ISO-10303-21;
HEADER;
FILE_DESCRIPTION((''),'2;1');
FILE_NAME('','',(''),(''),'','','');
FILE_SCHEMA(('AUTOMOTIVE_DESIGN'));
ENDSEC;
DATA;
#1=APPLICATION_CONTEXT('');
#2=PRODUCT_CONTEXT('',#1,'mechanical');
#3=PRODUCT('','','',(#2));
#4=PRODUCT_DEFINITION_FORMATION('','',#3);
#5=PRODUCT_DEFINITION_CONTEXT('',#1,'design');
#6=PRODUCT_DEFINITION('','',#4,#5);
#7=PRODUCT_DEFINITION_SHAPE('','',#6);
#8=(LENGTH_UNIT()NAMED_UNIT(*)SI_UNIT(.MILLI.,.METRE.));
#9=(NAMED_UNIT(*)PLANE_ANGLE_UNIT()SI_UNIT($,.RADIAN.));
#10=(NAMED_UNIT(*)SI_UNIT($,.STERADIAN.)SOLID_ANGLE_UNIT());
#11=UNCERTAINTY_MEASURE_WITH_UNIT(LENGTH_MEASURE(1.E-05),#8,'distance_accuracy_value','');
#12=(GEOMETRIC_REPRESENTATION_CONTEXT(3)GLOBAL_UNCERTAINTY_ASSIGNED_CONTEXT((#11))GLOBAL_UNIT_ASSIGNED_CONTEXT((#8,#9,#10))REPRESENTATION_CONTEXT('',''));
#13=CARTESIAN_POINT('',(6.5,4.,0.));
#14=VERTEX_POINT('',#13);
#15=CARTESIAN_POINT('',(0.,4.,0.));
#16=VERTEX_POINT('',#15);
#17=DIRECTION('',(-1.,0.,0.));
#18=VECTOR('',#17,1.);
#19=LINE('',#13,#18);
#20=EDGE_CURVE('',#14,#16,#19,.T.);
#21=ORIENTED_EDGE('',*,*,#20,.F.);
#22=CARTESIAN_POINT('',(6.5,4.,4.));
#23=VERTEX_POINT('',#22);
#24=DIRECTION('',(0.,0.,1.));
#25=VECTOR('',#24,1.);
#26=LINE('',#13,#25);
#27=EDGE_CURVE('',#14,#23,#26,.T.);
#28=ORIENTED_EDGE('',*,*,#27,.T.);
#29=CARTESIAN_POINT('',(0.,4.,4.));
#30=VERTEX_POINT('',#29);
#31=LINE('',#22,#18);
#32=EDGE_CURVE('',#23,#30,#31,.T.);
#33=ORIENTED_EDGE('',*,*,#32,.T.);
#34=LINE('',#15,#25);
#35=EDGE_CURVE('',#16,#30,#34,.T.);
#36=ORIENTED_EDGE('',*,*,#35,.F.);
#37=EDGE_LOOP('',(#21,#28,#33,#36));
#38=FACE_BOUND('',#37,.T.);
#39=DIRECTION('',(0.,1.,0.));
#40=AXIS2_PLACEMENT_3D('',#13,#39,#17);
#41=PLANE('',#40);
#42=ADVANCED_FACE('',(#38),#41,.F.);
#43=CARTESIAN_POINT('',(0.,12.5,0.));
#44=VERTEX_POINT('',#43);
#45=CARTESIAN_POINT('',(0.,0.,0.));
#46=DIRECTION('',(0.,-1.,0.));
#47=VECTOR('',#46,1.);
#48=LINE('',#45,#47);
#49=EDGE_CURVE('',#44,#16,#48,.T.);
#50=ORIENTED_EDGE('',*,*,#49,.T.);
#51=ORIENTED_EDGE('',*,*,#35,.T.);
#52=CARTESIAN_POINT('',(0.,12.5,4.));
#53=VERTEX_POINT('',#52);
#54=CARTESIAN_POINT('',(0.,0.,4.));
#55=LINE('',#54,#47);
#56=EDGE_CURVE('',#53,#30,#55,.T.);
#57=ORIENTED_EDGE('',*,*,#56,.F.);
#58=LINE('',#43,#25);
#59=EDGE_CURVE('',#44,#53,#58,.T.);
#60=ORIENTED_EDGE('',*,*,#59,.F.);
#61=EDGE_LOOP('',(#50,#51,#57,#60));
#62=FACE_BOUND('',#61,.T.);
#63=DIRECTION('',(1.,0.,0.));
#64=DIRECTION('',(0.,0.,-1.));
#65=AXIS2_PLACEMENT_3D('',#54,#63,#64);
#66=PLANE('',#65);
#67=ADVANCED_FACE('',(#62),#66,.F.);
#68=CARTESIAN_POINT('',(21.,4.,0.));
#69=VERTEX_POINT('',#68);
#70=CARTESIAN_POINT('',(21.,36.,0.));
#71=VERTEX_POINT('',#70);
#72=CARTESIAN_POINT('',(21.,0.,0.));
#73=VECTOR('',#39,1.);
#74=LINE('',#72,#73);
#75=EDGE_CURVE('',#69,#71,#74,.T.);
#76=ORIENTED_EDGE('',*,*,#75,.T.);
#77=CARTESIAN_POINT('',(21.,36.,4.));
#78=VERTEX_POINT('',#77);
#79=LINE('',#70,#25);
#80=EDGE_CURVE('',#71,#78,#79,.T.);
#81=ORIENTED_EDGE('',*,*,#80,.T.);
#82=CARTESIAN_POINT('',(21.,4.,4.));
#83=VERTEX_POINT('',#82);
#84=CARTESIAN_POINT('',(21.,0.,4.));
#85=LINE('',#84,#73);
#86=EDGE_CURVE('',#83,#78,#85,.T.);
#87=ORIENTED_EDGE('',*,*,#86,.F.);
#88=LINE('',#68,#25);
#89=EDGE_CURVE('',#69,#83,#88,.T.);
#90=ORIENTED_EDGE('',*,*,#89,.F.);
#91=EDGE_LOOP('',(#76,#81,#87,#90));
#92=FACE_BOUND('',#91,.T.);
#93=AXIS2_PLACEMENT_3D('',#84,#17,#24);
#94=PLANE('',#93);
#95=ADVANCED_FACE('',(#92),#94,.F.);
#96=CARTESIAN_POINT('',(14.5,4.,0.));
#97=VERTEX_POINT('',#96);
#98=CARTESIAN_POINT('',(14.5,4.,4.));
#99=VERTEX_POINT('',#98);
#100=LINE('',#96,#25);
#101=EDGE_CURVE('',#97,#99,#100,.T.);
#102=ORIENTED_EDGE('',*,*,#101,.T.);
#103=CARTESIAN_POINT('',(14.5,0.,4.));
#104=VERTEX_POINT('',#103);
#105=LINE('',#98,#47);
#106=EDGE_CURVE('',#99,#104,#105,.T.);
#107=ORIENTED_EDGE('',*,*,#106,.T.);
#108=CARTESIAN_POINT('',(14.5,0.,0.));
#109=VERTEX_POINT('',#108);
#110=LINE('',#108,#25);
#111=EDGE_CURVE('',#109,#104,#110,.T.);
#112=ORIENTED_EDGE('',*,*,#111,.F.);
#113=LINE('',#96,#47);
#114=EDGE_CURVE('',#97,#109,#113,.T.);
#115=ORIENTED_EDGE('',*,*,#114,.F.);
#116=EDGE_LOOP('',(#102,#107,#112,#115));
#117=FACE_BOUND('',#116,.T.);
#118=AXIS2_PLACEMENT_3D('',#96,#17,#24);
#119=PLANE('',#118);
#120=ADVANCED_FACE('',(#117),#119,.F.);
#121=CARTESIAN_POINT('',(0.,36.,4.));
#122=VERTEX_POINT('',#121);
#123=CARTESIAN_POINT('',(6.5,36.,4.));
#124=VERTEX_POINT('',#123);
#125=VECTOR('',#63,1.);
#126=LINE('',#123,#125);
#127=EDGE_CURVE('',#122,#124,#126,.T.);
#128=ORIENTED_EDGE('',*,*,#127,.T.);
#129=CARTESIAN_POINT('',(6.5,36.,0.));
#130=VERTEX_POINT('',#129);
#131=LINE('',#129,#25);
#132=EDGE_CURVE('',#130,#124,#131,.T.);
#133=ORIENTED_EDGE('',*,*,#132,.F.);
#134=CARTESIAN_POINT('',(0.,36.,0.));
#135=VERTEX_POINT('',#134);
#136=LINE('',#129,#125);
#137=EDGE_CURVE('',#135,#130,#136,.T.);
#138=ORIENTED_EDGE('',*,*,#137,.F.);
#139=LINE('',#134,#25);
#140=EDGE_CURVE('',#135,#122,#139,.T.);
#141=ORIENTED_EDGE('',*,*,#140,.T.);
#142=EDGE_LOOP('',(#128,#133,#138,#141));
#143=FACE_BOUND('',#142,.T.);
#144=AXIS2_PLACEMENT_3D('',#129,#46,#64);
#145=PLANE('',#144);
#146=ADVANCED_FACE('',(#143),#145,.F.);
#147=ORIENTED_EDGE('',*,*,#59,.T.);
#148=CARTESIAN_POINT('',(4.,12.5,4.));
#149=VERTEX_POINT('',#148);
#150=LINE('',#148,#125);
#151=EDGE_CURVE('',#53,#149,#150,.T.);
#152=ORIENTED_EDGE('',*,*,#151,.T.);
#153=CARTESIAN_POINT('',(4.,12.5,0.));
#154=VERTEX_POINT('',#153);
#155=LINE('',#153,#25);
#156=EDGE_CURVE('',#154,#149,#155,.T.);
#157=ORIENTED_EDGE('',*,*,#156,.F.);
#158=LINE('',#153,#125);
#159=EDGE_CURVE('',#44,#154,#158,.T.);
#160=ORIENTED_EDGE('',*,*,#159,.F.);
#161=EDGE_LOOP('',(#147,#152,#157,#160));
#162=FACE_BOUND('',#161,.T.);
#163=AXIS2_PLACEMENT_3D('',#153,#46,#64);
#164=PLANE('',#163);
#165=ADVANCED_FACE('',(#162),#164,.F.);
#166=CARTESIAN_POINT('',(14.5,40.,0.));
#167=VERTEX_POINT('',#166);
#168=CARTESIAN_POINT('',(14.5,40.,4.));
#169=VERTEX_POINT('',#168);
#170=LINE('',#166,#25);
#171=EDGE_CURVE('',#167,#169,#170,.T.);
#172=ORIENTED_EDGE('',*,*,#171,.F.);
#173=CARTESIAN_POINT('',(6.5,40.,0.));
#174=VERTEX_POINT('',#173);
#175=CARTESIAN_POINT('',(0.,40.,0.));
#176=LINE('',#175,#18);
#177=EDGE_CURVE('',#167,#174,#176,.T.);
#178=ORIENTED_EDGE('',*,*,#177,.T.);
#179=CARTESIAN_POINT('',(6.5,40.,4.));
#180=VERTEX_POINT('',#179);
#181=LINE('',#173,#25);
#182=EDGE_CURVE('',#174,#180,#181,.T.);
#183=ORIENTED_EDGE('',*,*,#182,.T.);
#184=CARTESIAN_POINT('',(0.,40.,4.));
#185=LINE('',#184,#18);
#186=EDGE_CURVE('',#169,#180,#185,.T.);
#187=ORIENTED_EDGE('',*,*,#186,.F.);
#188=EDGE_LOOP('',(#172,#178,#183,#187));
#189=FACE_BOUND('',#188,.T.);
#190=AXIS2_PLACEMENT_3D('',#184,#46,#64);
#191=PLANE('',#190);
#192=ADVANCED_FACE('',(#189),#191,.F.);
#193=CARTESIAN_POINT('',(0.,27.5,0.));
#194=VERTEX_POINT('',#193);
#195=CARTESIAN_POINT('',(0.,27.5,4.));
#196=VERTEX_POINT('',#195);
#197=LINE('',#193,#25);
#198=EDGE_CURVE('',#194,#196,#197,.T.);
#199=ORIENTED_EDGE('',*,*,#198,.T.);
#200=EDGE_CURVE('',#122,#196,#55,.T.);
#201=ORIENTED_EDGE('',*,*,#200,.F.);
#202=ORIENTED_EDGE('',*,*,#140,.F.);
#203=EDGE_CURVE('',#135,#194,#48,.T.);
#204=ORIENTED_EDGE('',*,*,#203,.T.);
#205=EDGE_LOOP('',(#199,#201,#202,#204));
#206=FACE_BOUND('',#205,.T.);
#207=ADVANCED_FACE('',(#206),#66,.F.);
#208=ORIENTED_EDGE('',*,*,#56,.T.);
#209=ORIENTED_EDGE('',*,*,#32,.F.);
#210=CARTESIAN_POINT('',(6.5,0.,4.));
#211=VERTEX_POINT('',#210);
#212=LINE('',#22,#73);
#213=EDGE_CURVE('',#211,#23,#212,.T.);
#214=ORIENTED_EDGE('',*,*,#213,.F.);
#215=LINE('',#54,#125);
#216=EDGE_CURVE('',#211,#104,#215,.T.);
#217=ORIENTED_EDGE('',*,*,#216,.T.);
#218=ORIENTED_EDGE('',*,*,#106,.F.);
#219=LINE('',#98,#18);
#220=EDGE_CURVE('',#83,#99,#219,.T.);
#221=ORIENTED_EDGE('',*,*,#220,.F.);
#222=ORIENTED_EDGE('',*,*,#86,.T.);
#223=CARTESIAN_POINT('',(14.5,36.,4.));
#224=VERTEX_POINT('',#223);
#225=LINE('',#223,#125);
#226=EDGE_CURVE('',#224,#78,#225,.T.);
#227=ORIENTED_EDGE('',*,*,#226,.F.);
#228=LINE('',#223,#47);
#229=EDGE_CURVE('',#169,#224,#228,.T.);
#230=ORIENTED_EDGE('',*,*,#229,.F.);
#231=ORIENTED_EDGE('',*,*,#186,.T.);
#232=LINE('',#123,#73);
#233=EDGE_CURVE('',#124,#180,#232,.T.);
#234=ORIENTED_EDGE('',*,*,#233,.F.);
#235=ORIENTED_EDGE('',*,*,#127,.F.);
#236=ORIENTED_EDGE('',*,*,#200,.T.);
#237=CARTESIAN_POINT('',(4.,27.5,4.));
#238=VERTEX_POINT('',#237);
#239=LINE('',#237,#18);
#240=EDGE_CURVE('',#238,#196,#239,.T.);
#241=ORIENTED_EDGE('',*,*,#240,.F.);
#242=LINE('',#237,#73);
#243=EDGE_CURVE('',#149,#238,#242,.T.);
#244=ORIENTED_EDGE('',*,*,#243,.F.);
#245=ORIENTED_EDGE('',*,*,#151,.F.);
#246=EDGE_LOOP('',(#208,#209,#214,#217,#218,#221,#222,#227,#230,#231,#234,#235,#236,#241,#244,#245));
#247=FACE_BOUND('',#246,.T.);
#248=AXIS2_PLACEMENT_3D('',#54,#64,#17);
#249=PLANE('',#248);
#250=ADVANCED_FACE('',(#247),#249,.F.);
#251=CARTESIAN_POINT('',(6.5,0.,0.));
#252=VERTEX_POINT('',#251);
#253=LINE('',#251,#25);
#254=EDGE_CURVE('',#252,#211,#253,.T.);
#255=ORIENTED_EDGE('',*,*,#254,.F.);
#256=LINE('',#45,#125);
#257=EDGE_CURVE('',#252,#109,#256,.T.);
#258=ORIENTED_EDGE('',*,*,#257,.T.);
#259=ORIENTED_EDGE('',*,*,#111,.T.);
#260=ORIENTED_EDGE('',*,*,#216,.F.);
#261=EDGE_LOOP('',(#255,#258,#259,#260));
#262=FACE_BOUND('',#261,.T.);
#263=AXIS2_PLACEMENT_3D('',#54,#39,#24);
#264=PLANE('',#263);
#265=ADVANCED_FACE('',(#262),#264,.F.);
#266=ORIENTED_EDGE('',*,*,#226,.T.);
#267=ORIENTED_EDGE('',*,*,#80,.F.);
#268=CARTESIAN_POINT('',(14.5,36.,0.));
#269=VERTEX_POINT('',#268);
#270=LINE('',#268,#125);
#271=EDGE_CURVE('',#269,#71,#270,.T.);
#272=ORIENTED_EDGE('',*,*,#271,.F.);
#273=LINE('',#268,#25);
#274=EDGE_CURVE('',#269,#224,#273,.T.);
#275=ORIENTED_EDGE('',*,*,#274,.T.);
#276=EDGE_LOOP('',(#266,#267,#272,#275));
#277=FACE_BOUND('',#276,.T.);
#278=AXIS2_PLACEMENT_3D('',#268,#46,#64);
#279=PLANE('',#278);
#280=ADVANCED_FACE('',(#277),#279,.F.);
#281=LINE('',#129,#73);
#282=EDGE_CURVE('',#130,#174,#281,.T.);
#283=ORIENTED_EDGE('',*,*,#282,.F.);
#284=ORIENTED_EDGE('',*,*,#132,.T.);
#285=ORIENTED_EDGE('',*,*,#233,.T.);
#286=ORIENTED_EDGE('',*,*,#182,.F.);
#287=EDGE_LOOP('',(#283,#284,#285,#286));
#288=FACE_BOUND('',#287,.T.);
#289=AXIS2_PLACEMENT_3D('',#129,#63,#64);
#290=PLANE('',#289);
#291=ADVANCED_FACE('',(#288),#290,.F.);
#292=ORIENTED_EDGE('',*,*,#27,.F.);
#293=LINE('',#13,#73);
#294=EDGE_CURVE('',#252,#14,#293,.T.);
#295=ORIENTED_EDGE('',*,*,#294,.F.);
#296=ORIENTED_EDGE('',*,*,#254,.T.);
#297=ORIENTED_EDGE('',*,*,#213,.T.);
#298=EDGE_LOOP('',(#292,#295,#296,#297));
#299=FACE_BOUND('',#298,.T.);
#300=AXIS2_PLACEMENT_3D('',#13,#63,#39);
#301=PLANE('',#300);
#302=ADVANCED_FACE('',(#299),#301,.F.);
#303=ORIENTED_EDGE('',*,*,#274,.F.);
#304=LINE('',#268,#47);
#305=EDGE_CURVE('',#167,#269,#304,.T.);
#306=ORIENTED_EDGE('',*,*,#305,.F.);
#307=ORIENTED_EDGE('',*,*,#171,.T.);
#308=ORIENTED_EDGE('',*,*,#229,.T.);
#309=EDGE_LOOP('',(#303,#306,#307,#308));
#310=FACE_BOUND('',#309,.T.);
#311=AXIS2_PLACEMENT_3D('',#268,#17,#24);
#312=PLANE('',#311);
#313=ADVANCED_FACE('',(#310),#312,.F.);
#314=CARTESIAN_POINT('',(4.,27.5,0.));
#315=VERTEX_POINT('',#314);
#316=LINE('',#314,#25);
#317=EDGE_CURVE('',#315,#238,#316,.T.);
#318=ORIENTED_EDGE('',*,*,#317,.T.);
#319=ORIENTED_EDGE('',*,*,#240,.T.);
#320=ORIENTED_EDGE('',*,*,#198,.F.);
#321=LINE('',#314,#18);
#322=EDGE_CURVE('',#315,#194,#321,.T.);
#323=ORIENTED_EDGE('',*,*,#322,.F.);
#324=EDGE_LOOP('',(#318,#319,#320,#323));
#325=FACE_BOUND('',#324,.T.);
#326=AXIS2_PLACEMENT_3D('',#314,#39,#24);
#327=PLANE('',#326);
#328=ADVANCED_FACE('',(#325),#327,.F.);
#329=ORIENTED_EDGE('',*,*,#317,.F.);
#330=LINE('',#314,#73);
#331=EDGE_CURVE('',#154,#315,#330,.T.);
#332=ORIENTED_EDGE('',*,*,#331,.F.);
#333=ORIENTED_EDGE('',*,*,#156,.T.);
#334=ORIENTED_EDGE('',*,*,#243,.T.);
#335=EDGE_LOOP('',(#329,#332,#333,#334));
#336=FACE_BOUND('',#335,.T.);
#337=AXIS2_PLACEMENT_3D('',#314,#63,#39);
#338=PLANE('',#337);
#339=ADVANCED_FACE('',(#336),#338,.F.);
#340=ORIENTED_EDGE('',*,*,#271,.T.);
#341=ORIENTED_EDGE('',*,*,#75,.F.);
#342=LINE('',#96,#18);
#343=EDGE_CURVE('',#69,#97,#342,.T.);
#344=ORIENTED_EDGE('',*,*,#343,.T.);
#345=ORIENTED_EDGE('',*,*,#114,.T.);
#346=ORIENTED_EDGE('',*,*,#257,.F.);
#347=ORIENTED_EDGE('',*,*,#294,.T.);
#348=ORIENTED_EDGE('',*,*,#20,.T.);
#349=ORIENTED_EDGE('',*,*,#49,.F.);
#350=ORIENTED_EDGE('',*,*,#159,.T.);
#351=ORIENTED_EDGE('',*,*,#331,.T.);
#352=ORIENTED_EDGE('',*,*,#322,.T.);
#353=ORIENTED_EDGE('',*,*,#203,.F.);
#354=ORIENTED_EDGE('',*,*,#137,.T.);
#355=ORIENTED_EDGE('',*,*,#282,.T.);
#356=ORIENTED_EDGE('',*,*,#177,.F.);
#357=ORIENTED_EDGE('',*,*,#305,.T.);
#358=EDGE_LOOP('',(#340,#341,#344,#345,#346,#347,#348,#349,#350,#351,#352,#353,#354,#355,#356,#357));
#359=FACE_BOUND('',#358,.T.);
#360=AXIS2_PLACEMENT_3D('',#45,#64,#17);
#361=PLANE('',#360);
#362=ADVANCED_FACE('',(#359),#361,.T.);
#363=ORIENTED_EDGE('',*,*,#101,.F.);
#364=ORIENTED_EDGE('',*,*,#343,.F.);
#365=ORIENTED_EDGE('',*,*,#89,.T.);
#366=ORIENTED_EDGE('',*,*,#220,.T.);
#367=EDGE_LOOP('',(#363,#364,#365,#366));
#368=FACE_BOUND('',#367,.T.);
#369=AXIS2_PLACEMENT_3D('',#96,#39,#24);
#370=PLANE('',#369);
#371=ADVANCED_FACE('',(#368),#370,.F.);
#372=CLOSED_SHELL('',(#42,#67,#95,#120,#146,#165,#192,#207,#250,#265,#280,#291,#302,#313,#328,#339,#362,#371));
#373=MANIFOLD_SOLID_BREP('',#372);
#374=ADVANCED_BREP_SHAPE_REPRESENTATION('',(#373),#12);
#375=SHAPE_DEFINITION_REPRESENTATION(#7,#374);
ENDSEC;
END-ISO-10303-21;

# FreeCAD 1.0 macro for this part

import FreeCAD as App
import Part
import Sketcher

V = App.Vector
Q = App.Units.Quantity

doc = App.newDocument("Part")
body = doc.addObject("PartDesign::Body", "Body")

# Sketch on XY plane
sketch1 = body.newObject("Sketcher::SketchObject", "Sketch")
sketch1.AttachmentSupport = (doc.getObject("XY_Plane"), [""])
sketch1.MapMode = "FlatFace"
sketch1.addGeometry(Part.LineSegment(V(0, 40, 0), V(0, 0, 0)), False)
sketch1.addGeometry(Part.LineSegment(V(0, 0, 0), V(21, 0, 0)), False)
sketch1.addGeometry(Part.LineSegment(V(21, 0, 0), V(21, 40, 0)), False)
sketch1.addGeometry(Part.LineSegment(V(21, 40, 0), V(0, 40, 0)), False)
sketch1.addConstraint(Sketcher.Constraint("Coincident", 0, 2, 1, 1))
sketch1.addConstraint(Sketcher.Constraint("Coincident", 1, 2, 2, 1))
sketch1.addConstraint(Sketcher.Constraint("Coincident", 2, 2, 3, 1))
sketch1.addConstraint(Sketcher.Constraint("Coincident", 3, 2, 0, 1))
sketch1.addConstraint(Sketcher.Constraint("Vertical", 0))
sketch1.addConstraint(Sketcher.Constraint("Horizontal", 1))
sketch1.addConstraint(Sketcher.Constraint("Vertical", 2))
sketch1.addConstraint(Sketcher.Constraint("Horizontal", 3))
sketch1.addConstraint(Sketcher.Constraint("Coincident", 0, 2, -1, 1))
sketch1.addConstraint(Sketcher.Constraint("DistanceX", 1, 1, 1, 2, Q("21 mm")))
sketch1.addConstraint(Sketcher.Constraint("DistanceY", 0, 2, 0, 1, Q("40 mm")))
pad1 = body.newObject("PartDesign::Pad", "Pad")
pad1.Profile = sketch1
pad1.Length = 4

# Sketch on XY plane
sketch2 = body.newObject("Sketcher::SketchObject", "Sketch001")
sketch2.AttachmentSupport = (doc.getObject("XY_Plane"), [""])
sketch2.MapMode = "FlatFace"
sketch2.AttachmentOffset = App.Placement(V(0, 0, 4), App.Rotation())
sketch2.addGeometry(Part.LineSegment(V(14.5, 40, 0), V(14.5, 36, 0)), False)
sketch2.addGeometry(Part.LineSegment(V(14.5, 36, 0), V(21, 36, 0)), False)
sketch2.addGeometry(Part.LineSegment(V(21, 36, 0), V(21, 40, 0)), False)
sketch2.addGeometry(Part.LineSegment(V(21, 40, 0), V(14.5, 40, 0)), False)
sketch2.addGeometry(Part.LineSegment(V(0, 40, 0), V(0, 36, 0)), False)
sketch2.addGeometry(Part.LineSegment(V(0, 36, 0), V(6.5, 36, 0)), False)
sketch2.addGeometry(Part.LineSegment(V(6.5, 36, 0), V(6.5, 40, 0)), False)
sketch2.addGeometry(Part.LineSegment(V(6.5, 40, 0), V(0, 40, 0)), False)
sketch2.addGeometry(Part.LineSegment(V(14.5, 4, 0), V(14.5, 0, 0)), False)
sketch2.addGeometry(Part.LineSegment(V(14.5, 0, 0), V(21, 0, 0)), False)
sketch2.addGeometry(Part.LineSegment(V(21, 0, 0), V(21, 4, 0)), False)
sketch2.addGeometry(Part.LineSegment(V(21, 4, 0), V(14.5, 4, 0)), False)
sketch2.addGeometry(Part.LineSegment(V(0, 4, 0), V(0, 0, 0)), False)
sketch2.addGeometry(Part.LineSegment(V(0, 0, 0), V(6.5, 0, 0)), False)
sketch2.addGeometry(Part.LineSegment(V(6.5, 0, 0), V(6.5, 4, 0)), False)
sketch2.addGeometry(Part.LineSegment(V(6.5, 4, 0), V(0, 4, 0)), False)
sketch2.addGeometry(Part.LineSegment(V(0, 27.5, 0), V(0, 12.5, 0)), False)
sketch2.addGeometry(Part.LineSegment(V(0, 12.5, 0), V(4, 12.5, 0)), False)
sketch2.addGeometry(Part.LineSegment(V(4, 12.5, 0), V(4, 27.5, 0)), False)
sketch2.addGeometry(Part.LineSegment(V(4, 27.5, 0), V(0, 27.5, 0)), False)
sketch2.addConstraint(Sketcher.Constraint("Coincident", 0, 2, 1, 1))
sketch2.addConstraint(Sketcher.Constraint("Coincident", 1, 2, 2, 1))
sketch2.addConstraint(Sketcher.Constraint("Coincident", 2, 2, 3, 1))
sketch2.addConstraint(Sketcher.Constraint("Coincident", 3, 2, 0, 1))
sketch2.addConstraint(Sketcher.Constraint("Coincident", 4, 2, 5, 1))
sketch2.addConstraint(Sketcher.Constraint("Coincident", 5, 2, 6, 1))
sketch2.addConstraint(Sketcher.Constraint("Coincident", 6, 2, 7, 1))
sketch2.addConstraint(Sketcher.Constraint("Coincident", 7, 2, 4, 1))
sketch2.addConstraint(Sketcher.Constraint("Coincident", 8, 2, 9, 1))
sketch2.addConstraint(Sketcher.Constraint("Coincident", 9, 2, 10, 1))
sketch2.addConstraint(Sketcher.Constraint("Coincident", 10, 2, 11, 1))
sketch2.addConstraint(Sketcher.Constraint("Coincident", 11, 2, 8, 1))
sketch2.addConstraint(Sketcher.Constraint("Coincident", 12, 2, 13, 1))
sketch2.addConstraint(Sketcher.Constraint("Coincident", 13, 2, 14, 1))
sketch2.addConstraint(Sketcher.Constraint("Coincident", 14, 2, 15, 1))
sketch2.addConstraint(Sketcher.Constraint("Coincident", 15, 2, 12, 1))
sketch2.addConstraint(Sketcher.Constraint("Coincident", 16, 2, 17, 1))
sketch2.addConstraint(Sketcher.Constraint("Coincident", 17, 2, 18, 1))
sketch2.addConstraint(Sketcher.Constraint("Coincident", 18, 2, 19, 1))
sketch2.addConstraint(Sketcher.Constraint("Coincident", 19, 2, 16, 1))
sketch2.addConstraint(Sketcher.Constraint("Vertical", 0))
sketch2.addConstraint(Sketcher.Constraint("Horizontal", 1))
sketch2.addConstraint(Sketcher.Constraint("Vertical", 2))
sketch2.addConstraint(Sketcher.Constraint("Horizontal", 3))
sketch2.addConstraint(Sketcher.Constraint("Vertical", 4))
sketch2.addConstraint(Sketcher.Constraint("Horizontal", 5))
sketch2.addConstraint(Sketcher.Constraint("Vertical", 6))
sketch2.addConstraint(Sketcher.Constraint("Horizontal", 7))
sketch2.addConstraint(Sketcher.Constraint("Vertical", 8))
sketch2.addConstraint(Sketcher.Constraint("Horizontal", 9))
sketch2.addConstraint(Sketcher.Constraint("Vertical", 10))
sketch2.addConstraint(Sketcher.Constraint("Horizontal", 11))
sketch2.addConstraint(Sketcher.Constraint("Vertical", 12))
sketch2.addConstraint(Sketcher.Constraint("Horizontal", 13))
sketch2.addConstraint(Sketcher.Constraint("Vertical", 14))
sketch2.addConstraint(Sketcher.Constraint("Horizontal", 15))
sketch2.addConstraint(Sketcher.Constraint("Vertical", 16))
sketch2.addConstraint(Sketcher.Constraint("Horizontal", 17))
sketch2.addConstraint(Sketcher.Constraint("Vertical", 18))
sketch2.addConstraint(Sketcher.Constraint("Horizontal", 19))
sketch2.addConstraint(Sketcher.Constraint("Coincident", 12, 2, -1, 1))
sketch2.addConstraint(Sketcher.Constraint("PointOnObject", 4, 2, -2))
sketch2.addConstraint(Sketcher.Constraint("PointOnObject", 8, 2, -1))
sketch2.addConstraint(Sketcher.Constraint("PointOnObject", 16, 2, -2))
sketch2.addConstraint(Sketcher.Constraint("Horizontal", 1, 2, 4, 2))
sketch2.addConstraint(Sketcher.Constraint("Horizontal", 3, 2, 6, 2))
sketch2.addConstraint(Sketcher.Constraint("Horizontal", 11, 2, 14, 2))
sketch2.addConstraint(Sketcher.Constraint("Vertical", 3, 2, 8, 2))
sketch2.addConstraint(Sketcher.Constraint("Vertical", 2, 2, 9, 2))
sketch2.addConstraint(Sketcher.Constraint("Vertical", 6, 2, 13, 2))
sketch2.addConstraint(Sketcher.Constraint("Equal", 3, 5))
sketch2.addConstraint(Sketcher.Constraint("Equal", 19, 0))
sketch2.addConstraint(Sketcher.Constraint("Equal", 6, 8))
sketch2.addConstraint(Sketcher.Constraint("DistanceX", 17, 1, 17, 2, Q("4 mm")))
sketch2.addConstraint(Sketcher.Constraint("DistanceY", 16, 2, 16, 1, Q("15 mm")))
sketch2.addConstraint(Sketcher.Constraint("DistanceX", 1, 1, 1, 2, Q("6.5 mm")))
sketch2.addConstraint(Sketcher.Constraint("DistanceY", -1, 1, 0, 2, Q("36 mm")))
sketch2.addConstraint(Sketcher.Constraint("DistanceX", -1, 1, 1, 2, Q("21 mm")))
sketch2.addConstraint(Sketcher.Constraint("DistanceY", -1, 1, 16, 2, Q("12.5 mm")))
pocket1 = body.newObject("PartDesign::Pocket", "Pocket")
pocket1.Profile = sketch2
pocket1.Length = 4

doc.recompute()
